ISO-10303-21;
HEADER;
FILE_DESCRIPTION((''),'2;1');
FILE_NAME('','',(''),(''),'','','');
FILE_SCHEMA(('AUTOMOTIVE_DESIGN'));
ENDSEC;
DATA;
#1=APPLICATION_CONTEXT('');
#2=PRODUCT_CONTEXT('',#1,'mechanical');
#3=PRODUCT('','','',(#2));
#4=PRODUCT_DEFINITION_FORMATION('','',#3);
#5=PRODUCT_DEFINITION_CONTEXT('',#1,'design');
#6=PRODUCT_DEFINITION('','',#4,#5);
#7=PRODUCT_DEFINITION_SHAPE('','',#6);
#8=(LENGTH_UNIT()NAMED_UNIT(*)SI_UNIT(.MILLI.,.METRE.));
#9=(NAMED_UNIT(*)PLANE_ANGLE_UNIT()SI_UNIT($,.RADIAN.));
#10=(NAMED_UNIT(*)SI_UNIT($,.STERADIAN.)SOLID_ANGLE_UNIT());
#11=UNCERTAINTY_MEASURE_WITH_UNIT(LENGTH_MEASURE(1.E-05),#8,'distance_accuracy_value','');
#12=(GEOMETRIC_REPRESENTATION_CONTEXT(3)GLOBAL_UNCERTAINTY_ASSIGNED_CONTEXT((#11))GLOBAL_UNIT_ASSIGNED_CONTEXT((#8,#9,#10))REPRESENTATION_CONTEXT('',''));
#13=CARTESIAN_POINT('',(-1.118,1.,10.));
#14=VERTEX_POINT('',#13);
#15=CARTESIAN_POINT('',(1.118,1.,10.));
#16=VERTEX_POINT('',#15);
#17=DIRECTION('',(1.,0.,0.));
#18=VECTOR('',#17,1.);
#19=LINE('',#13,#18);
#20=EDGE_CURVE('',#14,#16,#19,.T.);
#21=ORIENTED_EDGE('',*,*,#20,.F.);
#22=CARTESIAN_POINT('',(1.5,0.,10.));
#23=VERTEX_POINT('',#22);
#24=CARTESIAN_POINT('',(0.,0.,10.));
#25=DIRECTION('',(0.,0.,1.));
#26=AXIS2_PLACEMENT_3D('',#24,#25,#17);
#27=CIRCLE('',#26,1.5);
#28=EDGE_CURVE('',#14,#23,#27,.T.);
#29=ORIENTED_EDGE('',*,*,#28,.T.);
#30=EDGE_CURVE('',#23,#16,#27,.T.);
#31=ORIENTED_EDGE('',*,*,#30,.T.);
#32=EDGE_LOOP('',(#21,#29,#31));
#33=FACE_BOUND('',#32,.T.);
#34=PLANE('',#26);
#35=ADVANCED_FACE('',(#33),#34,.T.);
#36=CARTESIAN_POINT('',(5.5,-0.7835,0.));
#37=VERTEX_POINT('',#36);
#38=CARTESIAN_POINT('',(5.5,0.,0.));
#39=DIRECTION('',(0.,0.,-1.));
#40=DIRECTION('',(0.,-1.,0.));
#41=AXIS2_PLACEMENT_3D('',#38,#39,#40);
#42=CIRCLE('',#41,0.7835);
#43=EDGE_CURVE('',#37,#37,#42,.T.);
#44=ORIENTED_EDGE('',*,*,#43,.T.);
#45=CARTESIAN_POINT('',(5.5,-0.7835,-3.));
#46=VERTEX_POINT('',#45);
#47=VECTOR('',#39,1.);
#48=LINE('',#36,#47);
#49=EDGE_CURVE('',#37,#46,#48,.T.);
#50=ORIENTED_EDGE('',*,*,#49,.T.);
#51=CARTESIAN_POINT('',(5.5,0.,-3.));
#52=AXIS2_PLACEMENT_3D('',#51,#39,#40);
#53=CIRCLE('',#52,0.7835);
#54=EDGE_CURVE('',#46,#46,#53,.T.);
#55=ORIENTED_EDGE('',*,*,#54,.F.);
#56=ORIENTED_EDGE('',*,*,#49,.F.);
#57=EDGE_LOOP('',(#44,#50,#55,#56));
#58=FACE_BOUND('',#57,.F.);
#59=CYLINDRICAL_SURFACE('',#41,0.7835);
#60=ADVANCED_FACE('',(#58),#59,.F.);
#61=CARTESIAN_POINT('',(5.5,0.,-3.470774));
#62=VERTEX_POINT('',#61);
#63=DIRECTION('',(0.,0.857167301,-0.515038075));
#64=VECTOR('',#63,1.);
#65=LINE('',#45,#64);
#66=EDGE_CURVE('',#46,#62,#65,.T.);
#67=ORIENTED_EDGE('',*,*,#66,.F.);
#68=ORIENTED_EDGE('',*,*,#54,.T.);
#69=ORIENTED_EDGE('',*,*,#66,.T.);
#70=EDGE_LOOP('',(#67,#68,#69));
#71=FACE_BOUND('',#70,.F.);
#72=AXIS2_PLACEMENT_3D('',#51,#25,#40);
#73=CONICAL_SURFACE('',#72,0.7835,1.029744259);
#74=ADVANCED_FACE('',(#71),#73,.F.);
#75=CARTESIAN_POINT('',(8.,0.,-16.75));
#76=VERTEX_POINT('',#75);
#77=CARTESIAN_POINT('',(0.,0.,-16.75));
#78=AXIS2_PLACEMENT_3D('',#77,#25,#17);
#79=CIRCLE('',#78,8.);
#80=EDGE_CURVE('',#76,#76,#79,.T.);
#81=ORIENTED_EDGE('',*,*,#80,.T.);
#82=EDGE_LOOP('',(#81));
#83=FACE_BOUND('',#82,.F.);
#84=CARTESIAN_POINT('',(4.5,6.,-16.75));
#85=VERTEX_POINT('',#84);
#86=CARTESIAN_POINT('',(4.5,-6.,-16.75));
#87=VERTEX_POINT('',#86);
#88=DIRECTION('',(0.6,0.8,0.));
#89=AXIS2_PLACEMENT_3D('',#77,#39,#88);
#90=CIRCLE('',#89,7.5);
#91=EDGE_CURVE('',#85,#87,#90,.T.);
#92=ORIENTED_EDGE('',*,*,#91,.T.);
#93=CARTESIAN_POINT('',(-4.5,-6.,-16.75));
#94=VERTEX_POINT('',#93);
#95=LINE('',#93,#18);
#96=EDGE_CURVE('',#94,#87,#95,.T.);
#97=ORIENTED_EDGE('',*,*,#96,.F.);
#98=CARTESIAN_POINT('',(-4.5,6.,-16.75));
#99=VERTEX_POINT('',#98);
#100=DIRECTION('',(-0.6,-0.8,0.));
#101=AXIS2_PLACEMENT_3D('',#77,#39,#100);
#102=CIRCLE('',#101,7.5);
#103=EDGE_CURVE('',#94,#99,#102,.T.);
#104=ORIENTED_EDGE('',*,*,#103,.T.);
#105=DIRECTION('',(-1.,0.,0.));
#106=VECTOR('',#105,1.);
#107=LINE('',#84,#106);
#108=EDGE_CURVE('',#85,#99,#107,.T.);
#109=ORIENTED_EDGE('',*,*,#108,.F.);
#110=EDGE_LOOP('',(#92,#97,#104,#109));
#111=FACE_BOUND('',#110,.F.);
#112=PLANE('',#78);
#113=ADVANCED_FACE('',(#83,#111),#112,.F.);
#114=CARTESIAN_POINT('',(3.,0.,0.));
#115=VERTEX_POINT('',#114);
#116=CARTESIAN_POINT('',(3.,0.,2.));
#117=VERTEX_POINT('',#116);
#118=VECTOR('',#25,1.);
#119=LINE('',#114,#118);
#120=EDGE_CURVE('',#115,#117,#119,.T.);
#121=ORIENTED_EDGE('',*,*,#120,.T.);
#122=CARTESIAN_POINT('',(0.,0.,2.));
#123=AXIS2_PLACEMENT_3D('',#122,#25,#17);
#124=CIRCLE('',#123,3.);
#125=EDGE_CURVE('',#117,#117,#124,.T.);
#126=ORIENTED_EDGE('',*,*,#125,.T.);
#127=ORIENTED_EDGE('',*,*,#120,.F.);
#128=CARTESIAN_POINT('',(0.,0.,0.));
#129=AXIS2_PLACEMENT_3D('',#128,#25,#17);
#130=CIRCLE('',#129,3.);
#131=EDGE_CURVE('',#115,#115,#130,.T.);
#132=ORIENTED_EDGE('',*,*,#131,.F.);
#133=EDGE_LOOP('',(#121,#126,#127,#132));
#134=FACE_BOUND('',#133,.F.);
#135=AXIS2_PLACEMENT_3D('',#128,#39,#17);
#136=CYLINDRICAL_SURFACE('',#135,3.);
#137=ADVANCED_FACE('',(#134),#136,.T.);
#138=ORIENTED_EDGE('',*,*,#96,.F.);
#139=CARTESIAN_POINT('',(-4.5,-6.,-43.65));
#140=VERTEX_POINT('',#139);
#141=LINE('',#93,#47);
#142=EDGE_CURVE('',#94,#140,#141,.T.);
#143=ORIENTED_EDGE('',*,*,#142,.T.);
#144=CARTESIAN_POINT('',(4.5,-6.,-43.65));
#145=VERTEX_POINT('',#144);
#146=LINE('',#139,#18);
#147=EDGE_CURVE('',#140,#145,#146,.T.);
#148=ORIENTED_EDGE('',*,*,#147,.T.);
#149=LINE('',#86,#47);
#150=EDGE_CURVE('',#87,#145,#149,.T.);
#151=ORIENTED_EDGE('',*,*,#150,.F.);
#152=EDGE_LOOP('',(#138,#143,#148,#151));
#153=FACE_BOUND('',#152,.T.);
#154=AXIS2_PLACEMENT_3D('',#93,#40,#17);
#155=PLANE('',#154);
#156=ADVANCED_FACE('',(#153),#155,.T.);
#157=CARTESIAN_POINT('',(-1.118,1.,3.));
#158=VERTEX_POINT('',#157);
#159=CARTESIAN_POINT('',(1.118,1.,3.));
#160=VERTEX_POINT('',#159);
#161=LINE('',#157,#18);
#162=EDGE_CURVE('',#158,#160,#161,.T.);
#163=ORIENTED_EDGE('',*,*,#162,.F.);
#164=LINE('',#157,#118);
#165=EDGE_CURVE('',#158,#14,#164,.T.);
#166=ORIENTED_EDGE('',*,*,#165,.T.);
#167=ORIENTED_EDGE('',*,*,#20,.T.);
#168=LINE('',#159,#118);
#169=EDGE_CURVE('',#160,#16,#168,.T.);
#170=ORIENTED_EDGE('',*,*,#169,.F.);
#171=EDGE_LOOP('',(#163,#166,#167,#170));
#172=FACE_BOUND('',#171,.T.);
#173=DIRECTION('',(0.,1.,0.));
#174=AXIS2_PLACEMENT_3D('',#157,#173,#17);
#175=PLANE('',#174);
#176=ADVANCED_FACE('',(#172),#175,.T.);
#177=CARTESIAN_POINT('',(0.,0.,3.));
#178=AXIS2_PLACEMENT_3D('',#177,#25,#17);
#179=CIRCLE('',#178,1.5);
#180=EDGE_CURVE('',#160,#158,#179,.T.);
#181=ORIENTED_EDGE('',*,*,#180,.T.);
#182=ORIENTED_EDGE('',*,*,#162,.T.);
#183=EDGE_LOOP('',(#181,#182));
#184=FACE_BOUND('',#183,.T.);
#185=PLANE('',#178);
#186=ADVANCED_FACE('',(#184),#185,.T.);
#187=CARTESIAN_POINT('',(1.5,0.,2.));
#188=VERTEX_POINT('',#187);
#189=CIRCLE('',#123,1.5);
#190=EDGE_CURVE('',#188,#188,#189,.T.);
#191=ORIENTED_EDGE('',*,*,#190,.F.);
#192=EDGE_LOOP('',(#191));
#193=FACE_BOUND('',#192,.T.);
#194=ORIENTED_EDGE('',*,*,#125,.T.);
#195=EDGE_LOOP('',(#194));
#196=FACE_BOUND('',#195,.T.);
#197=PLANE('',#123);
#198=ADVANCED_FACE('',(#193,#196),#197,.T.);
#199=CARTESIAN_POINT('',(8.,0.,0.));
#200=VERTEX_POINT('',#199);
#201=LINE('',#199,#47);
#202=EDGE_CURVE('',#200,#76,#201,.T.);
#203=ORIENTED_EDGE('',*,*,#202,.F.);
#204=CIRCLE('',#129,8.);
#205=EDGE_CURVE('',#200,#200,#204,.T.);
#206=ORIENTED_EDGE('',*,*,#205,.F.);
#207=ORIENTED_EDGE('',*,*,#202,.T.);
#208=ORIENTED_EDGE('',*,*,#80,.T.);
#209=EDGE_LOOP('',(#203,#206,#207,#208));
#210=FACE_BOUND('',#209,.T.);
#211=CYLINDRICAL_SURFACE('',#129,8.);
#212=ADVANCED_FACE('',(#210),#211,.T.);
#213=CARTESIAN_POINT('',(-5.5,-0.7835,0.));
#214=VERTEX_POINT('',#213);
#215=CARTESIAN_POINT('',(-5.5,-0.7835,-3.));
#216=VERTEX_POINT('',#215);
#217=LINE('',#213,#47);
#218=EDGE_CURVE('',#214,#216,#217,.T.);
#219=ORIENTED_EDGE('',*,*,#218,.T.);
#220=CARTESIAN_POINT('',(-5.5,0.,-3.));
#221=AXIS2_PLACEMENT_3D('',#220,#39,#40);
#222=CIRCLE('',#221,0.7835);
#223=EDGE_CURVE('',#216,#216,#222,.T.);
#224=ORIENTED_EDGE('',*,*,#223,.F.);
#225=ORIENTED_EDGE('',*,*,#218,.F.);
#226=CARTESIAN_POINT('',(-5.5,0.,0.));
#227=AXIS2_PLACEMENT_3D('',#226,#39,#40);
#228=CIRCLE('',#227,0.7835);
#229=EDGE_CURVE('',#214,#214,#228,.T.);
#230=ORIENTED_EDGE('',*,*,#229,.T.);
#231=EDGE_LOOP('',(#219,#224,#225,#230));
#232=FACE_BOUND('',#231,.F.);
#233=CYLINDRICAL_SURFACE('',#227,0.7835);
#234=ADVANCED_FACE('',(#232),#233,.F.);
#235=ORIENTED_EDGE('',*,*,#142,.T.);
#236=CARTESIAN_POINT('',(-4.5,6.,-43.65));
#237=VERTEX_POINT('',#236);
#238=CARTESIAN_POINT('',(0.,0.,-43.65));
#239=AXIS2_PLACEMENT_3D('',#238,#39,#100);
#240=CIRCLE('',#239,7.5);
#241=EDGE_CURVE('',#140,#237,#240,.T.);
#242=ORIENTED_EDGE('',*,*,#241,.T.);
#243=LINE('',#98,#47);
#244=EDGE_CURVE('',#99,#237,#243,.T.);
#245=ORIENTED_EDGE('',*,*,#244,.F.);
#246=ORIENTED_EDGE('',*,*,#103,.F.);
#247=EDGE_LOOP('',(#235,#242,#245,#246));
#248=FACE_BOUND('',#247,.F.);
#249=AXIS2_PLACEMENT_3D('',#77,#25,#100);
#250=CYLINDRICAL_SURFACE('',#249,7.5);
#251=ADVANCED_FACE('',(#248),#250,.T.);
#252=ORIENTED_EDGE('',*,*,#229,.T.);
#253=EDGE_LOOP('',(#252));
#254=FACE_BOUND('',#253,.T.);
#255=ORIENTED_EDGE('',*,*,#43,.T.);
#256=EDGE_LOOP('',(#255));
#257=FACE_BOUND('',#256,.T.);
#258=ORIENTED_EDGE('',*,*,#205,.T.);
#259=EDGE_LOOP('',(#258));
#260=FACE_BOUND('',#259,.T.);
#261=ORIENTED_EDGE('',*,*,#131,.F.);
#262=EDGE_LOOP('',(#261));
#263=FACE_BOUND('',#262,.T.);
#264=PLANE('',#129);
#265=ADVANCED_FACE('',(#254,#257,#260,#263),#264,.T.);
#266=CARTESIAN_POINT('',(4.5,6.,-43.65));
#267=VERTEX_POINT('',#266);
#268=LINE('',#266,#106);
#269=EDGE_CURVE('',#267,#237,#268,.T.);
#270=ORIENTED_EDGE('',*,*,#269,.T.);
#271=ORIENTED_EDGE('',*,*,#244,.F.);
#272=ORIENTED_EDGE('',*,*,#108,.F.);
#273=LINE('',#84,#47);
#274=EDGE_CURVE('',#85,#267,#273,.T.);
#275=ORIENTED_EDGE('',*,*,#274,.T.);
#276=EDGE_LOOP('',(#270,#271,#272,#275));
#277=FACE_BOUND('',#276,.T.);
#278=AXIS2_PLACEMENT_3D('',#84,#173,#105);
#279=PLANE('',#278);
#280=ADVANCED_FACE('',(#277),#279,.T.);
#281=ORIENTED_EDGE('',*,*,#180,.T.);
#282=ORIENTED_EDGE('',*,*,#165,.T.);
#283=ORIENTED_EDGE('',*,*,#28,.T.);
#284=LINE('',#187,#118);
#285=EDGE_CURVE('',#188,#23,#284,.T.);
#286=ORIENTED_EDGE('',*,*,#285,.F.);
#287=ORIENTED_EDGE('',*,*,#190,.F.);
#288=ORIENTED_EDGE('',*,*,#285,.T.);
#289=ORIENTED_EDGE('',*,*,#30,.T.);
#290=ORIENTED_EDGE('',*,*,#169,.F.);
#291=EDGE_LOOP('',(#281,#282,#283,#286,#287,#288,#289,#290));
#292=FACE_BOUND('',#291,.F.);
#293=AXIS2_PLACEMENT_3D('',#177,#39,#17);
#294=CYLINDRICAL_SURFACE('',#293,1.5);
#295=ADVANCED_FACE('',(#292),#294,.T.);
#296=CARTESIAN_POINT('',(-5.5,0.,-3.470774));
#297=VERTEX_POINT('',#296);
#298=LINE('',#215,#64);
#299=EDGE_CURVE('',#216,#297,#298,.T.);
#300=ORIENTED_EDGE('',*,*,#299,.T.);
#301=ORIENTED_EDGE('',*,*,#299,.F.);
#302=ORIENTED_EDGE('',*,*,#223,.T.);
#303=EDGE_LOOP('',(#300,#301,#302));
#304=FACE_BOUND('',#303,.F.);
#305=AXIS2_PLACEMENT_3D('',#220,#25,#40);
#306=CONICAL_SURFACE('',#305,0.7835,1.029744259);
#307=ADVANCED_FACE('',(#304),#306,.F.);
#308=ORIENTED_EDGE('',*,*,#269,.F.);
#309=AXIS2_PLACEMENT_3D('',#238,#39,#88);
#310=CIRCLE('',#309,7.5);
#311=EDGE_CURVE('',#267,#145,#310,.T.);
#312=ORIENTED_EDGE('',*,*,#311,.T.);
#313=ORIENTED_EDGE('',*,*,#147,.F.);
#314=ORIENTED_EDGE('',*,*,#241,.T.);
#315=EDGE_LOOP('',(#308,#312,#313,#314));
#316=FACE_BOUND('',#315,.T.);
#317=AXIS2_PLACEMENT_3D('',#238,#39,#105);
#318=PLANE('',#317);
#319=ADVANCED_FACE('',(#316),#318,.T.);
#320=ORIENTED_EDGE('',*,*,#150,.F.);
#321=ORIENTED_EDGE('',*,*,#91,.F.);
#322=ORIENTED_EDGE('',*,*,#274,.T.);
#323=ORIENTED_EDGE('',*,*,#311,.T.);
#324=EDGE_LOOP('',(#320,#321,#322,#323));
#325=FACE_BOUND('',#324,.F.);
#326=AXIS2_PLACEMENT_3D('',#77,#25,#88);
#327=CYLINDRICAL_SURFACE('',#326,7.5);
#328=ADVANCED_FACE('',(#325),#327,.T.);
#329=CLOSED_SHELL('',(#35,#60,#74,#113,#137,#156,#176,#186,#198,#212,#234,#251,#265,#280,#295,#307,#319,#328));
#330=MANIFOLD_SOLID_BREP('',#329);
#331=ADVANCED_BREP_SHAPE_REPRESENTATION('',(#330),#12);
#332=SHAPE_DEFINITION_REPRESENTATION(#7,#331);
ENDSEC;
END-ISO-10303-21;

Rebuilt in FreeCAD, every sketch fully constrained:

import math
import FreeCAD as App
import Part
import Sketcher
Q = App.Units.Quantity

doc = App.newDocument("Part")
body = doc.addObject("PartDesign::Body", "Body")

sketch1 = body.newObject("Sketcher::SketchObject", "Sketch")
sketch1.AttachmentSupport = (doc.getObject("XY_Plane"), [""])
sketch1.MapMode = "FlatFace"
sketch1.addGeometry(Part.Circle(App.Vector(0, 0, 0), App.Vector(0, 0, 1), 3), False)
sketch1.addConstraint(Sketcher.Constraint("Coincident", 0, 3, -1, 1))
sketch1.addConstraint(Sketcher.Constraint("Diameter", 0, Q("6 mm")))
pad1 = body.newObject("PartDesign::Pad", "Pad")
pad1.Profile = sketch1
pad1.Length = 2

sketch2 = body.newObject("Sketcher::SketchObject", "Sketch001")
sketch2.AttachmentSupport = (doc.getObject("XY_Plane"), [""])
sketch2.MapMode = "FlatFace"
sketch2.AttachmentOffset = App.Placement(App.Vector(0, 0, 2), App.Rotation())
sketch2.addGeometry(Part.Circle(App.Vector(0, 0, 0), App.Vector(0, 0, 1), 1.5), False)
sketch2.addConstraint(Sketcher.Constraint("Coincident", 0, 3, -1, 1))
sketch2.addConstraint(Sketcher.Constraint("Diameter", 0, Q("3 mm")))
pad2 = body.newObject("PartDesign::Pad", "Pad001")
pad2.Profile = sketch2
pad2.Length = 1

sketch3 = body.newObject("Sketcher::SketchObject", "Sketch002")
sketch3.AttachmentSupport = (doc.getObject("XY_Plane"), [""])
sketch3.MapMode = "FlatFace"
sketch3.AttachmentOffset = App.Placement(App.Vector(0, 0, 3), App.Rotation())
sketch3.addGeometry(Part.ArcOfCircle(Part.Circle(App.Vector(0, 0, 0), App.Vector(0, 0, 1), 1.5), math.radians(138), math.radians(402)), False)
sketch3.addGeometry(Part.LineSegment(App.Vector(-1.1, 1, 0), App.Vector(1.1, 1, 0)), False)
sketch3.addConstraint(Sketcher.Constraint("Coincident", 0, 1, 1, 1))
sketch3.addConstraint(Sketcher.Constraint("Coincident", 1, 2, 0, 2))
sketch3.addConstraint(Sketcher.Constraint("Horizontal", 1))
sketch3.addConstraint(Sketcher.Constraint("Coincident", 0, 3, -1, 1))
sketch3.addConstraint(Sketcher.Constraint("Radius", 0, Q("1.5 mm")))
sketch3.addConstraint(Sketcher.Constraint("DistanceY", -1, 1, 0, 1, Q("1 mm")))
pad3 = body.newObject("PartDesign::Pad", "Pad002")
pad3.Profile = sketch3
pad3.Length = 7

sketch4 = body.newObject("Sketcher::SketchObject", "Sketch003")
sketch4.AttachmentSupport = (doc.getObject("XY_Plane"), [""])
sketch4.MapMode = "FlatFace"
sketch4.addGeometry(Part.Circle(App.Vector(0, 0, 0), App.Vector(0, 0, 1), 8), False)
sketch4.addConstraint(Sketcher.Constraint("Coincident", 0, 3, -1, 1))
sketch4.addConstraint(Sketcher.Constraint("Diameter", 0, Q("16 mm")))
pad4 = body.newObject("PartDesign::Pad", "Pad003")
pad4.Profile = sketch4
pad4.Length = 16.75
pad4.Reversed = True

sketch5 = body.newObject("Sketcher::SketchObject", "Sketch004")
sketch5.AttachmentSupport = (doc.getObject("XY_Plane"), [""])
sketch5.MapMode = "FlatFace"
sketch5.AttachmentOffset = App.Placement(App.Vector(0, 0, -16.75), App.Rotation())
sketch5.addGeometry(Part.LineSegment(App.Vector(-4, 6, 0), App.Vector(4, 6, 0)), False)
sketch5.addGeometry(Part.ArcOfCircle(Part.Circle(App.Vector(0, 0, 0), App.Vector(0, 0, 1), 8), math.radians(-53), math.radians(53)), False)
sketch5.addGeometry(Part.LineSegment(App.Vector(4, -6, 0), App.Vector(-4, -6, 0)), False)
sketch5.addGeometry(Part.ArcOfCircle(Part.Circle(App.Vector(0, 0, 0), App.Vector(0, 0, 1), 8), math.radians(127), math.radians(233)), False)
sketch5.addConstraint(Sketcher.Constraint("Coincident", 0, 2, 1, 2))
sketch5.addConstraint(Sketcher.Constraint("Coincident", 1, 1, 2, 1))
sketch5.addConstraint(Sketcher.Constraint("Coincident", 2, 2, 3, 2))
sketch5.addConstraint(Sketcher.Constraint("Coincident", 3, 1, 0, 1))
sketch5.addConstraint(Sketcher.Constraint("Horizontal", 0))
sketch5.addConstraint(Sketcher.Constraint("Horizontal", 2))
sketch5.addConstraint(Sketcher.Constraint("Coincident", 1, 3, -1, 1))
sketch5.addConstraint(Sketcher.Constraint("Coincident", 3, 3, -1, 1))
sketch5.addConstraint(Sketcher.Constraint("Equal", 1, 3))
sketch5.addConstraint(Sketcher.Constraint("Vertical", 0, 2, 1, 1))
sketch5.addConstraint(Sketcher.Constraint("Radius", 1, Q("7.5 mm")))
sketch5.addConstraint(Sketcher.Constraint("DistanceY", 1, 1, 0, 2, Q("12 mm")))
pad5 = body.newObject("PartDesign::Pad", "Pad004")
pad5.Profile = sketch5
pad5.Length = 26.9
pad5.Reversed = True

sketch6 = body.newObject("Sketcher::SketchObject", "Sketch005")
sketch6.AttachmentSupport = (doc.getObject("XY_Plane"), [""])
sketch6.MapMode = "FlatFace"
sketch6.addGeometry(Part.Circle(App.Vector(-5.5, 0, 0), App.Vector(0, 0, 1), 0.8), False)
sketch6.addGeometry(Part.Circle(App.Vector(5.5, 0, 0), App.Vector(0, 0, 1), 0.8), False)
sketch6.addConstraint(Sketcher.Constraint("Equal", 0, 1))
sketch6.addConstraint(Sketcher.Constraint("Symmetric", 0, 3, 1, 3, -1, 1))
sketch6.addConstraint(Sketcher.Constraint("PointOnObject", 0, 3, -1))
sketch6.addConstraint(Sketcher.Constraint("Diameter", 0, Q("1.567 mm")))
sketch6.addConstraint(Sketcher.Constraint("DistanceX", 0, 3, 1, 3, Q("11 mm")))
doc.recompute()
hole = body.newObject("PartDesign::Hole", "Hole")
hole.Profile = sketch6
hole.ThreadType = "None"
hole.Diameter = 1.567
hole.DepthType = "Dimension"
hole.Depth = 3
hole.DrillPoint = "Angled"
hole.DrillPointAngle = 118

doc.recompute()
